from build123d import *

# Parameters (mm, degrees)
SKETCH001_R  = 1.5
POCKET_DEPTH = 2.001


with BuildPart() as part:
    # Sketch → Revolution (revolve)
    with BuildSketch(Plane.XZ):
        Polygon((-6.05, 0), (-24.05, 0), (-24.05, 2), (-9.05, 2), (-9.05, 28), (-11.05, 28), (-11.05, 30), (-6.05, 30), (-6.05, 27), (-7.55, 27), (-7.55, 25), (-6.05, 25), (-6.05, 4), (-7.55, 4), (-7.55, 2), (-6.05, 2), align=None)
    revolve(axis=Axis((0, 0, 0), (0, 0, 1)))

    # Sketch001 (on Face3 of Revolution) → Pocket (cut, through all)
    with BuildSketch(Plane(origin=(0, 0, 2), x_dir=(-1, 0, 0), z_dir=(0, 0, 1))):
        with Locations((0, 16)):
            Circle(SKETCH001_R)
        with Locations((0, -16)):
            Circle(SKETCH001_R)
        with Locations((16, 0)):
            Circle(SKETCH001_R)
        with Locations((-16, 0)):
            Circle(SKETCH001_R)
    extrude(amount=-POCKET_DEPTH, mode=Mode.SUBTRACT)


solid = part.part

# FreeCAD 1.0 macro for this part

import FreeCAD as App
import Part
import Sketcher
Q = App.Units.Quantity


def add_polygon(sketch, points):
    """Adds a closed chain of lines whose ends are joined by coincident constraints."""
    first, n = sketch.GeometryCount, len(points)
    for a, b in zip(points, points[1:] + points[:1]):
        sketch.addGeometry(Part.LineSegment(App.Vector(*a, 0), App.Vector(*b, 0)), False)
    for i in range(n):
        sketch.addConstraint(Sketcher.Constraint("Coincident", first + i, 2, first + (i + 1) % n, 1))

doc = App.newDocument("Part")
body = doc.addObject("PartDesign::Body", "Body")

sketch1 = doc.addObject("Sketcher::SketchObject", "Sketch")
body.addObject(sketch1)
sketch1.AttachmentSupport = (doc.XZ_Plane, [""])
sketch1.MapMode = "FlatFace"
add_polygon(sketch1, [(-24.1, 0), (-6, 0), (-6, 2), (-7.5, 2), (-7.5, 4), (-6, 4), (-6, 25), (-7.5, 25), (-7.5, 27), (-6, 27), (-6, 30), (-11.1, 30), (-11.1, 28), (-9.1, 28), (-9.1, 2), (-24.1, 2)])
sketch1.addConstraint(Sketcher.Constraint("Horizontal", 0))
sketch1.addConstraint(Sketcher.Constraint("Vertical", 1))
sketch1.addConstraint(Sketcher.Constraint("Horizontal", 2))
sketch1.addConstraint(Sketcher.Constraint("Vertical", 3))
sketch1.addConstraint(Sketcher.Constraint("Horizontal", 4))
sketch1.addConstraint(Sketcher.Constraint("Vertical", 5))
sketch1.addConstraint(Sketcher.Constraint("Horizontal", 6))
sketch1.addConstraint(Sketcher.Constraint("Vertical", 7))
sketch1.addConstraint(Sketcher.Constraint("Horizontal", 8))
sketch1.addConstraint(Sketcher.Constraint("Vertical", 9))
sketch1.addConstraint(Sketcher.Constraint("Horizontal", 10))
sketch1.addConstraint(Sketcher.Constraint("Vertical", 11))
sketch1.addConstraint(Sketcher.Constraint("Horizontal", 12))
sketch1.addConstraint(Sketcher.Constraint("Vertical", 13))
sketch1.addConstraint(Sketcher.Constraint("Horizontal", 14))
sketch1.addConstraint(Sketcher.Constraint("Vertical", 15))
sketch1.addConstraint(Sketcher.Constraint("PointOnObject", 0, 2, -1))
sketch1.addConstraint(Sketcher.Constraint("Horizontal", 2, 2, 13, 2))
sketch1.addConstraint(Sketcher.Constraint("Vertical", 1, 2, 4, 2))
sketch1.addConstraint(Sketcher.Constraint("Vertical", 3, 2, 6, 2))
sketch1.addConstraint(Sketcher.Constraint("Vertical", 5, 2, 8, 2))
sketch1.addConstraint(Sketcher.Constraint("Equal", 12, 1))
sketch1.addConstraint(Sketcher.Constraint("Equal", 1, 3))
sketch1.addConstraint(Sketcher.Constraint("Equal", 3, 7))
sketch1.addConstraint(Sketcher.Constraint("Equal", 7, 11))
sketch1.addConstraint(Sketcher.Constraint("DistanceX", 0, 1, 0, 2, Q("18 mm")))
sketch1.addConstraint(Sketcher.Constraint("DistanceX", 10, 2, 10, 1, Q("5 mm")))
sketch1.addConstraint(Sketcher.Constraint("DistanceX", 12, 1, 12, 2, Q("2 mm")))
sketch1.addConstraint(Sketcher.Constraint("DistanceY", 5, 1, 5, 2, Q("21 mm")))
sketch1.addConstraint(Sketcher.Constraint("DistanceY", 9, 1, 9, 2, Q("3 mm")))
sketch1.addConstraint(Sketcher.Constraint("DistanceX", 2, 2, 2, 1, Q("1.5 mm")))
sketch1.addConstraint(Sketcher.Constraint("DistanceX", 0, 2, -1, 1, Q("6.05 mm")))
revolution = doc.addObject("PartDesign::Revolution", "Revolution")
body.addObject(revolution)
revolution.Profile = sketch1
revolution.ReferenceAxis = (sketch1, ["V_Axis"])
revolution.Angle = 360

sketch2 = doc.addObject("Sketcher::SketchObject", "Sketch001")
body.addObject(sketch2)
sketch2.AttachmentSupport = (doc.XY_Plane, [""])
sketch2.MapMode = "FlatFace"
sketch2.AttachmentOffset = App.Placement(App.Vector(0, 0, 2), App.Rotation())
sketch2.addGeometry(Part.Circle(App.Vector(0, -16, 0), App.Vector(0, 0, 1), 1.5), False)
sketch2.addGeometry(Part.Circle(App.Vector(0, 16, 0), App.Vector(0, 0, 1), 1.5), False)
sketch2.addGeometry(Part.Circle(App.Vector(-16, 0, 0), App.Vector(0, 0, 1), 1.5), False)
sketch2.addGeometry(Part.Circle(App.Vector(16, 0, 0), App.Vector(0, 0, 1), 1.5), False)
sketch2.addConstraint(Sketcher.Constraint("Equal", 0, 1))
sketch2.addConstraint(Sketcher.Constraint("Equal", 1, 2))
sketch2.addConstraint(Sketcher.Constraint("Equal", 2, 3))
sketch2.addConstraint(Sketcher.Constraint("Symmetric", 0, 3, 1, 3, -1, 1))
sketch2.addConstraint(Sketcher.Constraint("Symmetric", 2, 3, 3, 3, -1, 1))
sketch2.addConstraint(Sketcher.Constraint("PointOnObject", 0, 3, -2))
sketch2.addConstraint(Sketcher.Constraint("PointOnObject", 2, 3, -1))
sketch2.addConstraint(Sketcher.Constraint("Diameter", 0, Q("3 mm")))
sketch2.addConstraint(Sketcher.Constraint("DistanceY", 0, 3, -1, 1, Q("16 mm")))
sketch2.addConstraint(Sketcher.Constraint("DistanceX", 2, 3, -1, 1, Q("16 mm")))
pocket1 = doc.addObject("PartDesign::Pocket", "Pocket")
body.addObject(pocket1)
pocket1.Profile = sketch2
pocket1.Type = "ThroughAll"

doc.recompute()
